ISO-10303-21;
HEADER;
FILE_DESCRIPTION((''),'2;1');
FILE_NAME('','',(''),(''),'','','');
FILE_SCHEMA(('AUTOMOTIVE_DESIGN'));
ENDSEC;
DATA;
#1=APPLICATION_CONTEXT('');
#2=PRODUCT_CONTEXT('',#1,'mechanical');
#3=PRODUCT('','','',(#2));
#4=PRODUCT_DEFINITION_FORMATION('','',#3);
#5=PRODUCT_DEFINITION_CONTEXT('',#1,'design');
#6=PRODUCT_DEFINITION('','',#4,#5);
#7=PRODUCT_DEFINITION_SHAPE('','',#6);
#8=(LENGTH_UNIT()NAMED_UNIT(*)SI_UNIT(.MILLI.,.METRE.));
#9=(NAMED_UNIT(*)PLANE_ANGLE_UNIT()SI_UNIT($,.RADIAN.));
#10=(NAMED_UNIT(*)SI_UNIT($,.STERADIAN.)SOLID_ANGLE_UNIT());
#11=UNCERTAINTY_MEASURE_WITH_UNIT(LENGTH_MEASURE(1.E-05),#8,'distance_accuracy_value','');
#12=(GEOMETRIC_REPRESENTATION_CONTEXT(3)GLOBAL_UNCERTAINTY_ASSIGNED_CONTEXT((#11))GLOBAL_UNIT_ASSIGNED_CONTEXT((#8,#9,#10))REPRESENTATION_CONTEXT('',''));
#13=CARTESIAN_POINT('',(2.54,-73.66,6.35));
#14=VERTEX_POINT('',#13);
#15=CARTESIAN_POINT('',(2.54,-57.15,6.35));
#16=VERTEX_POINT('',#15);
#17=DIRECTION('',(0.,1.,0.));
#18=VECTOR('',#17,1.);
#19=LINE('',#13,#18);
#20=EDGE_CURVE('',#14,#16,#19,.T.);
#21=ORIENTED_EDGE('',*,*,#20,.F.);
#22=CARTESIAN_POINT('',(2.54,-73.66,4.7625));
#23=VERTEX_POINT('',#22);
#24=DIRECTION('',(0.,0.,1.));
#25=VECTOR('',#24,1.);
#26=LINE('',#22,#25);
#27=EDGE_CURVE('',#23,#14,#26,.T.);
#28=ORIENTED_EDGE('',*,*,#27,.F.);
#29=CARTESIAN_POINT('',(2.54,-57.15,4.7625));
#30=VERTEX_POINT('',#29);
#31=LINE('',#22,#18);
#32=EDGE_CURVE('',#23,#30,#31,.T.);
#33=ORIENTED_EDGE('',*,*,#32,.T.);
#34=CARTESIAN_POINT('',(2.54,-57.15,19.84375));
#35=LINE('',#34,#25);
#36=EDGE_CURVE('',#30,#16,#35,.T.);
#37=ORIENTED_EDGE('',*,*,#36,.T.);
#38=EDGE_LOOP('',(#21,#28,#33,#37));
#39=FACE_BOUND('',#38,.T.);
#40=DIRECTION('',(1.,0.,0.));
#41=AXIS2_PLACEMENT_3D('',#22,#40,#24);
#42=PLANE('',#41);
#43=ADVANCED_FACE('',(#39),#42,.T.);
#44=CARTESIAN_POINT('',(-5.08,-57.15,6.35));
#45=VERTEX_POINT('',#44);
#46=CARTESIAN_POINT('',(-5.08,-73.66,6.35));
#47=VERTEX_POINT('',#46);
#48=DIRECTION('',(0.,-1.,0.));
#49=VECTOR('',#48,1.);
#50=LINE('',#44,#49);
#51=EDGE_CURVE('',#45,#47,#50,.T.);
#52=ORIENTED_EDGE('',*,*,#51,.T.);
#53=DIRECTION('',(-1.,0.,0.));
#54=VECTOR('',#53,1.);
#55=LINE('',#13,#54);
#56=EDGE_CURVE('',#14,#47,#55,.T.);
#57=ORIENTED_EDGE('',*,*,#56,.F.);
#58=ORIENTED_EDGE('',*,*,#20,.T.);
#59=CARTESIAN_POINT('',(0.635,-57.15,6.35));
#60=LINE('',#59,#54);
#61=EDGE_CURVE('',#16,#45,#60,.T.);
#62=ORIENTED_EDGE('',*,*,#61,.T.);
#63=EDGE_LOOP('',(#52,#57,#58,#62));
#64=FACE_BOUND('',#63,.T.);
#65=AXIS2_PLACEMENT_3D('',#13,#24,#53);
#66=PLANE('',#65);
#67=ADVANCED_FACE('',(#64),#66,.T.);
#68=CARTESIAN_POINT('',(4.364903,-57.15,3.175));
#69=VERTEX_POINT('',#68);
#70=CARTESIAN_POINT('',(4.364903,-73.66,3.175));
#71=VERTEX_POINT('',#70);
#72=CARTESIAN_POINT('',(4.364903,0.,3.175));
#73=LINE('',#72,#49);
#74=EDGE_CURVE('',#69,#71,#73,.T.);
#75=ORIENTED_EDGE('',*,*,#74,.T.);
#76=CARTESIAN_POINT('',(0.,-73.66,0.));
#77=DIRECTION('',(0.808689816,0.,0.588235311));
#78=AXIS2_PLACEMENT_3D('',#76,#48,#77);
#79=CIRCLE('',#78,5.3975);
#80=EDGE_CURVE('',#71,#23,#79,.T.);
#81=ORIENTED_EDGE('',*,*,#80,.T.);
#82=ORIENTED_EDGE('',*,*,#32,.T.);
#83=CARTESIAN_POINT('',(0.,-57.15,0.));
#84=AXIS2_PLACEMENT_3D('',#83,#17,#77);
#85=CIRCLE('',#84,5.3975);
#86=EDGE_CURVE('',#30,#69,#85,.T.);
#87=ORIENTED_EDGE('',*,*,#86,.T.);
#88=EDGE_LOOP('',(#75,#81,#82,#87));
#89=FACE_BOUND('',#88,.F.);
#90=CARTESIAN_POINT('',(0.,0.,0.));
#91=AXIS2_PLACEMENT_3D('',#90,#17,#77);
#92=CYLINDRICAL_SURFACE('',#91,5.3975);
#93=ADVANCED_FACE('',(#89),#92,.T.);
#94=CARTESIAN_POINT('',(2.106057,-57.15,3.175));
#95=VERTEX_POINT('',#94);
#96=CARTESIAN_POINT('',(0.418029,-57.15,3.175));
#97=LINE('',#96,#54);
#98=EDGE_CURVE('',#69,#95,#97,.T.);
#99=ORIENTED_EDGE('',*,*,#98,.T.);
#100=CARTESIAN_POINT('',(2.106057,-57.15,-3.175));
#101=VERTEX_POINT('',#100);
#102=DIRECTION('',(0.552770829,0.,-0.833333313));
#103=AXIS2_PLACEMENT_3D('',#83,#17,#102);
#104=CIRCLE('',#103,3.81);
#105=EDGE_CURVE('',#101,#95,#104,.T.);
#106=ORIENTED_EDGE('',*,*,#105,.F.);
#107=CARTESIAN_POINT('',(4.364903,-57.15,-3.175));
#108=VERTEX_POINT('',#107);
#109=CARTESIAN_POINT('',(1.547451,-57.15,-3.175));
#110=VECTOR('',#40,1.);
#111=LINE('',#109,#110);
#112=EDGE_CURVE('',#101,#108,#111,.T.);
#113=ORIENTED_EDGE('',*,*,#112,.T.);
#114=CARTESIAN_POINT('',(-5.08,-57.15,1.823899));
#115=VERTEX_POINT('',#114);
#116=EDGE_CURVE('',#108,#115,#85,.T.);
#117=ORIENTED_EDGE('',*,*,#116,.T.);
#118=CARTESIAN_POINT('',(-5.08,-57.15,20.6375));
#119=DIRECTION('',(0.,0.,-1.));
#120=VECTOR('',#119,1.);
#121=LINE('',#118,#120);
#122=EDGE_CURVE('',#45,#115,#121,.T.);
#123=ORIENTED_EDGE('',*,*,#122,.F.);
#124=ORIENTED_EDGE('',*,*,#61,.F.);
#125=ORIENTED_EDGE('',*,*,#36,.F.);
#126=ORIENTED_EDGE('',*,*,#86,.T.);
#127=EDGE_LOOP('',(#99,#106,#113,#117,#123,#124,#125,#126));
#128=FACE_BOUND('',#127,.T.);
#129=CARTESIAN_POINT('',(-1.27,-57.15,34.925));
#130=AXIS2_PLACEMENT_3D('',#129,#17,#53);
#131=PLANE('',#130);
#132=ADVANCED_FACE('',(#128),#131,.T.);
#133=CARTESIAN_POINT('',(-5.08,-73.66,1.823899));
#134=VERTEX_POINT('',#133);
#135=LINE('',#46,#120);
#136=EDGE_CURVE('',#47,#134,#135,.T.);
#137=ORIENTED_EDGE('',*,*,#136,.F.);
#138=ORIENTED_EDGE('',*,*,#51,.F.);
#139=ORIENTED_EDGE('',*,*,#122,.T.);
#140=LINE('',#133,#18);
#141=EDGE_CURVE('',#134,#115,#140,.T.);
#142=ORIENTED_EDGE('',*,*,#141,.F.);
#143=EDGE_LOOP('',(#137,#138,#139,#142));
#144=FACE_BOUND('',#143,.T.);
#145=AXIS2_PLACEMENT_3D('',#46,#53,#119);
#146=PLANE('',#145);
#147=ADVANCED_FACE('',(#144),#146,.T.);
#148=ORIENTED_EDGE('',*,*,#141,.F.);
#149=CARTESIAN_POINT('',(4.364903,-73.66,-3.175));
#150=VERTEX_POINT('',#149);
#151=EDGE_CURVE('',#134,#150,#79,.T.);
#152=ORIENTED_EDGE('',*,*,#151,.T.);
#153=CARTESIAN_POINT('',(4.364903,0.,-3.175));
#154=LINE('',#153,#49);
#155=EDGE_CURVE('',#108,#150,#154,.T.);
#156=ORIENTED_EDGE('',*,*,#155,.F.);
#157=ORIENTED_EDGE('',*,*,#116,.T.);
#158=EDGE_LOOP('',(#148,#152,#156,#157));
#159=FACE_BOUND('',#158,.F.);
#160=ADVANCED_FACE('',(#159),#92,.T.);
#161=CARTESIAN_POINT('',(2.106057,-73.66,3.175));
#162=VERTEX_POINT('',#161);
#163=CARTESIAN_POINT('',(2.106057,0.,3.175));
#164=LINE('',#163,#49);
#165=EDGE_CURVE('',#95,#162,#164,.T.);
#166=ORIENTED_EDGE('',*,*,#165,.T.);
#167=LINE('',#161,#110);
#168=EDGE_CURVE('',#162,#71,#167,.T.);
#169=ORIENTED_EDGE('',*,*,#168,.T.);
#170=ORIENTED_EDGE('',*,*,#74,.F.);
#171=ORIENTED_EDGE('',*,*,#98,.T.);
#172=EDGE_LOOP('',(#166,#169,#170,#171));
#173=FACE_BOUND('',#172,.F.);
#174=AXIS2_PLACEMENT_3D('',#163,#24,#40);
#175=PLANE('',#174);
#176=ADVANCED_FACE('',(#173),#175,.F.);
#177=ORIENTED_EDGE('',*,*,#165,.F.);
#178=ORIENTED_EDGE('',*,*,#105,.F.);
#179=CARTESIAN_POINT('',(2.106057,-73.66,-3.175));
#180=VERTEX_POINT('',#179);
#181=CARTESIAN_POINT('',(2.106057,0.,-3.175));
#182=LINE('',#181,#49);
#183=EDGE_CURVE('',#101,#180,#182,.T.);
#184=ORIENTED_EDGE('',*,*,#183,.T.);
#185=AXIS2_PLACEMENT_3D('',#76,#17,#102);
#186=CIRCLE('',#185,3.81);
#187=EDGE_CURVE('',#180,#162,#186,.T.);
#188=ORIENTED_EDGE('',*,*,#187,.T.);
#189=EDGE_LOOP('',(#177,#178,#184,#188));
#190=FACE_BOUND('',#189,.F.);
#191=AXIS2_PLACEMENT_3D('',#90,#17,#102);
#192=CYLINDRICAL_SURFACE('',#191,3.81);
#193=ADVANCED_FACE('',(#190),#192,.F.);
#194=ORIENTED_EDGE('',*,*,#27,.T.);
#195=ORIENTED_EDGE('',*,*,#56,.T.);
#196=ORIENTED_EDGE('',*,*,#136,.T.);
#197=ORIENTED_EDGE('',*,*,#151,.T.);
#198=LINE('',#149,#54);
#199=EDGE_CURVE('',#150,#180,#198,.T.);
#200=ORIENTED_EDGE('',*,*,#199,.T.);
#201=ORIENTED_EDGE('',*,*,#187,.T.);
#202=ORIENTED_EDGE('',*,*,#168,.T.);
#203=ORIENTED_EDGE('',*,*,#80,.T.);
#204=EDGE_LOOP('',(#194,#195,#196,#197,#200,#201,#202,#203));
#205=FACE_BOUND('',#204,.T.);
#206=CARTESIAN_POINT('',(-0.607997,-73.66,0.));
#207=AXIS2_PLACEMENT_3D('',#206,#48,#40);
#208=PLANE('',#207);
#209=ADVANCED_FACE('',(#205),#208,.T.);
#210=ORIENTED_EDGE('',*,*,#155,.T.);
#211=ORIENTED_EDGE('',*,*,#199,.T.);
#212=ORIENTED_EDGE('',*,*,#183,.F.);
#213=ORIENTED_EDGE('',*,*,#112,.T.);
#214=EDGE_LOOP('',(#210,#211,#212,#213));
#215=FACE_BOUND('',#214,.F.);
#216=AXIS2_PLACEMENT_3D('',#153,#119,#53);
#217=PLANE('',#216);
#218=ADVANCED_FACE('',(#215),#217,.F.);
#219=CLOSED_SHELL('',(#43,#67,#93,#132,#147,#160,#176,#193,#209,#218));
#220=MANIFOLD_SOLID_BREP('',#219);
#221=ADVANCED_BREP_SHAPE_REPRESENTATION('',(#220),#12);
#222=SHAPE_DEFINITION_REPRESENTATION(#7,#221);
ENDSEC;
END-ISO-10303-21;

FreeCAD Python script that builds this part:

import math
import FreeCAD as App
import Part
import Sketcher
from FreeCAD import Vector
Q = App.Units.Quantity

doc = App.newDocument("Part")
params = doc.addObject("Spreadsheet::Sheet", "Params")
for row, (alias, value) in enumerate([
    ("sketch1_radius", "0.15 in"),
    ("pad1_length", "2.9 in"),
    ("sketch2_width", "0.3 in"),
    ("sketch2_height", "0.0625 in"),
    ("pad2_length", "2.9 in"),
    ("sketch3_width", "1 in"),
    ("sketch3_height", "0.25 in"),
    ("pad3_length", "2.75 in"),
    ("sketch4_width", "0.5 in"),
    ("sketch4_height", "2.5 in"),
    ("sketch5_width", "1 in"),
    ("sketch5_height", "3.25 in"),
    ("pocket2_length", "2.25 in"),
    ("sketch6_width", "1 in"),
    ("sketch6_height", "0.25 in"),
], start=1):
    params.set(f"A{row}", alias)
    params.set(f"B{row}", "=" + value)
    params.setAlias(f"B{row}", alias)

body = doc.addObject("PartDesign::Body", "Body")

sketch1 = body.newObject("Sketcher::SketchObject", "Sketch")
sketch1.AttachmentSupport = (doc.getObject("XZ_Plane"), [""])
sketch1.MapMode = "FlatFace"
sketch1.addGeometry([
    Part.ArcOfCircle(Part.Circle(Vector(0, 0, 0), Vector(0, 0, 1), 3.81), math.radians(56.442688), math.radians(303.557312)),
    Part.LineSegment(Vector(2.106057, 3.175, 0), Vector(4.364903, 3.175, 0)),
    Part.ArcOfCircle(Part.Circle(Vector(0, 0, 0), Vector(0, 0, 1), 5.3975), math.radians(36.03188), math.radians(323.96812)),
    Part.LineSegment(Vector(4.364903, -3.175, 0), Vector(2.106057, -3.175, 0)),
], False)
sketch1.addConstraint([
    Sketcher.Constraint("Coincident", 0, 1, 1, 1),
    Sketcher.Constraint("Coincident", 1, 2, 2, 1),
    Sketcher.Constraint("Coincident", 2, 2, 3, 1),
    Sketcher.Constraint("Coincident", 3, 2, 0, 2),
    Sketcher.Constraint("Horizontal", 1),
    Sketcher.Constraint("Horizontal", 3),
    Sketcher.Constraint("Coincident", 0, 3, -1, 1),
    Sketcher.Constraint("Coincident", 2, 3, -1, 1),
    Sketcher.Constraint("Vertical", 1, 2, 2, 2),
    Sketcher.Constraint("Radius", 0, Q("0.15 in")),
    Sketcher.Constraint("Radius", 2, Q("0.2125 in")),
    Sketcher.Constraint("DistanceY", 2, 2, 1, 2, Q("0.25 in")),
])
sketch1.setExpression("Constraints[9]", "Params.sketch1_radius")
pad1 = body.newObject("PartDesign::Pad", "Pad")
pad1.Profile = sketch1
pad1.setExpression("Length", "Params.pad1_length")

sketch2 = body.newObject("Sketcher::SketchObject", "Sketch001")
sketch2.AttachmentSupport = (doc.getObject("XZ_Plane"), [""])
sketch2.MapMode = "FlatFace"
sketch2.AttachmentOffset = App.Placement(Vector(0, 0, 2.9 * 25.4), App.Rotation())
sketch2.addGeometry([
    Part.LineSegment(Vector(-5.08, 6.35, 0), Vector(-5.08, 1.823899, 0)),
    Part.ArcOfCircle(Part.Circle(Vector(0, 0.000001, 0), Vector(0, 0, 1), 5.397499), math.radians(61.927505), math.radians(160.250081)),
    Part.LineSegment(Vector(2.54, 4.7625, 0), Vector(2.54, 6.35, 0)),
    Part.LineSegment(Vector(2.54, 6.35, 0), Vector(-5.08, 6.35, 0)),
], False)
sketch2.addConstraint([
    Sketcher.Constraint("Coincident", 0, 2, 1, 2),
    Sketcher.Constraint("Coincident", 1, 1, 2, 1),
    Sketcher.Constraint("Coincident", 2, 2, 3, 1),
    Sketcher.Constraint("Coincident", 3, 2, 0, 1),
    Sketcher.Constraint("Vertical", 0),
    Sketcher.Constraint("Vertical", 2),
    Sketcher.Constraint("Horizontal", 3),
    Sketcher.Constraint("Coincident", 1, 3, -1, 1),
    Sketcher.Constraint("DistanceX", 3, 2, 3, 1, Q("0.3 in")),
    Sketcher.Constraint("DistanceX", 0, 2, -1, 1, Q("0.2 in")),
    Sketcher.Constraint("Radius", 1, Q("0.2125 in")),
    Sketcher.Constraint("DistanceY", 2, 1, 2, 2, Q("0.0625 in")),
])
sketch2.setExpression("Constraints[8]", "Params.sketch2_width")
sketch2.setExpression("Constraints[11]", "Params.sketch2_height")
pad2 = body.newObject("PartDesign::Pad", "Pad001")
pad2.Profile = sketch2
pad2.setExpression("Length", "Params.pad2_length")
pad2.Reversed = True

sketch3 = body.newObject("Sketcher::SketchObject", "Sketch002")
sketch3.AttachmentSupport = (doc.getObject("XY_Plane"), [""])
sketch3.MapMode = "FlatFace"
sketch3.AttachmentOffset = App.Placement(Vector(0, 0, 0.25 * 25.4), App.Rotation())
sketch3.addGeometry([
    Part.LineSegment(Vector(-13.97, -62.230001, 0), Vector(-13.97, -68.579999, 0)),
    Part.LineSegment(Vector(-13.97, -68.579999, 0), Vector(11.43, -68.579999, 0)),
    Part.LineSegment(Vector(11.43, -68.579999, 0), Vector(11.43, -62.230001, 0)),
    Part.LineSegment(Vector(11.43, -62.230001, 0), Vector(-13.97, -62.230001, 0)),
    Part.LineSegment(Vector(-13.97, -5.08, 0), Vector(-13.97, -11.43, 0)),
    Part.LineSegment(Vector(-13.97, -11.43, 0), Vector(11.43, -11.43, 0)),
    Part.LineSegment(Vector(11.43, -11.43, 0), Vector(11.43, -5.08, 0)),
    Part.LineSegment(Vector(11.43, -5.08, 0), Vector(-13.97, -5.08, 0)),
], False)
sketch3.addConstraint([
    Sketcher.Constraint("Coincident", 0, 2, 1, 1),
    Sketcher.Constraint("Coincident", 1, 2, 2, 1),
    Sketcher.Constraint("Coincident", 2, 2, 3, 1),
    Sketcher.Constraint("Coincident", 3, 2, 0, 1),
    Sketcher.Constraint("Coincident", 4, 2, 5, 1),
    Sketcher.Constraint("Coincident", 5, 2, 6, 1),
    Sketcher.Constraint("Coincident", 6, 2, 7, 1),
    Sketcher.Constraint("Coincident", 7, 2, 4, 1),
    Sketcher.Constraint("Vertical", 0),
    Sketcher.Constraint("Horizontal", 1),
    Sketcher.Constraint("Vertical", 2),
    Sketcher.Constraint("Horizontal", 3),
    Sketcher.Constraint("Vertical", 4),
    Sketcher.Constraint("Horizontal", 5),
    Sketcher.Constraint("Vertical", 6),
    Sketcher.Constraint("Horizontal", 7),
    Sketcher.Constraint("Vertical", 3, 2, 4, 2),
    Sketcher.Constraint("Vertical", 2, 2, 5, 2),
    Sketcher.Constraint("Equal", 2, 4),
    Sketcher.Constraint("DistanceX", 1, 1, 1, 2, Q("1 in")),
    Sketcher.Constraint("DistanceY", 3, 2, 4, 2, Q("2 in")),
    Sketcher.Constraint("DistanceY", 0, 2, 0, 1, Q("0.25 in")),
    Sketcher.Constraint("DistanceY", 0, 2, -1, 1, Q("2.7 in")),
    Sketcher.Constraint("DistanceX", 0, 2, -1, 1, Q("0.55 in")),
])
sketch3.setExpression("Constraints[19]", "Params.sketch3_width")
sketch3.setExpression("Constraints[21]", "Params.sketch3_height")
pad3 = body.newObject("PartDesign::Pad", "Pad002")
pad3.Profile = sketch3
pad3.setExpression("Length", "Params.pad3_length")

sketch4 = body.newObject("Sketcher::SketchObject", "Sketch003")
sketch4.AttachmentSupport = (doc.getObject("XZ_Plane"), [""])
sketch4.MapMode = "FlatFace"
sketch4.AttachmentOffset = App.Placement(Vector(0, 0, 2.7 * 25.4), App.Rotation())
sketch4.addGeometry([
    Part.LineSegment(Vector(-7.62, 76.2, 0), Vector(-7.62, 12.7, 0)),
    Part.LineSegment(Vector(-7.62, 12.7, 0), Vector(5.08, 12.7, 0)),
    Part.LineSegment(Vector(5.08, 12.7, 0), Vector(5.08, 76.2, 0)),
    Part.LineSegment(Vector(5.08, 76.2, 0), Vector(-7.62, 76.2, 0)),
], False)
sketch4.addConstraint([
    Sketcher.Constraint("Coincident", 0, 2, 1, 1),
    Sketcher.Constraint("Coincident", 1, 2, 2, 1),
    Sketcher.Constraint("Coincident", 2, 2, 3, 1),
    Sketcher.Constraint("Coincident", 3, 2, 0, 1),
    Sketcher.Constraint("Vertical", 0),
    Sketcher.Constraint("Horizontal", 1),
    Sketcher.Constraint("Vertical", 2),
    Sketcher.Constraint("Horizontal", 3),
    Sketcher.Constraint("DistanceX", 1, 1, 1, 2, Q("0.5 in")),
    Sketcher.Constraint("DistanceY", 0, 2, 0, 1, Q("2.5 in")),
    Sketcher.Constraint("DistanceY", -1, 1, 2, 2, Q("3 in")),
    Sketcher.Constraint("DistanceX", 0, 2, -1, 1, Q("0.3 in")),
])
sketch4.setExpression("Constraints[8]", "Params.sketch4_width")
sketch4.setExpression("Constraints[9]", "Params.sketch4_height")
pocket1 = body.newObject("PartDesign::Pocket", "Pocket")
pocket1.Profile = sketch4
pocket1.Type = "ThroughAll"

sketch5 = body.newObject("Sketcher::SketchObject", "Sketch004")
sketch5.AttachmentSupport = (doc.getObject("XZ_Plane"), [""])
sketch5.MapMode = "FlatFace"
sketch5.addGeometry([
    Part.LineSegment(Vector(11.43, 76.2, 0), Vector(11.43, -6.35, 0)),
    Part.LineSegment(Vector(11.43, -6.35, 0), Vector(-13.97, -6.35, 0)),
    Part.LineSegment(Vector(-13.97, -6.35, 0), Vector(-13.97, 76.2, 0)),
    Part.LineSegment(Vector(-13.97, 76.2, 0), Vector(11.43, 76.2, 0)),
], False)
sketch5.addConstraint([
    Sketcher.Constraint("Coincident", 0, 2, 1, 1),
    Sketcher.Constraint("Coincident", 1, 2, 2, 1),
    Sketcher.Constraint("Coincident", 2, 2, 3, 1),
    Sketcher.Constraint("Coincident", 3, 2, 0, 1),
    Sketcher.Constraint("Vertical", 0),
    Sketcher.Constraint("Horizontal", 1),
    Sketcher.Constraint("Vertical", 2),
    Sketcher.Constraint("Horizontal", 3),
    Sketcher.Constraint("DistanceX", 1, 2, 1, 1, Q("1 in")),
    Sketcher.Constraint("DistanceY", -1, 1, 2, 2, Q("3 in")),
    Sketcher.Constraint("DistanceY", 0, 2, 0, 1, Q("3.25 in")),
    Sketcher.Constraint("DistanceX", -1, 1, 0, 2, Q("0.45 in")),
])
sketch5.setExpression("Constraints[8]", "Params.sketch5_width")
sketch5.setExpression("Constraints[10]", "Params.sketch5_height")
pocket2 = body.newObject("PartDesign::Pocket", "Pocket001")
pocket2.Profile = sketch5
pocket2.setExpression("Length", "Params.pocket2_length")
pocket2.Reversed = True

sketch6 = body.newObject("Sketcher::SketchObject", "Sketch005")
sketch6.AttachmentSupport = (doc.getObject("XY_Plane"), [""])
sketch6.MapMode = "FlatFace"
sketch6.AttachmentOffset = App.Placement(Vector(0, 0, 0.25 * 25.4), App.Rotation())
sketch6.addGeometry([
    Part.LineSegment(Vector(-13.97, -68.579999, 0), Vector(-13.97, -62.230001, 0)),
    Part.LineSegment(Vector(-13.97, -62.230001, 0), Vector(11.43, -62.230001, 0)),
    Part.LineSegment(Vector(11.43, -62.230001, 0), Vector(11.43, -68.579999, 0)),
    Part.LineSegment(Vector(11.43, -68.579999, 0), Vector(-13.97, -68.579999, 0)),
], False)
sketch6.addConstraint([
    Sketcher.Constraint("Coincident", 0, 2, 1, 1),
    Sketcher.Constraint("Coincident", 1, 2, 2, 1),
    Sketcher.Constraint("Coincident", 2, 2, 3, 1),
    Sketcher.Constraint("Coincident", 3, 2, 0, 1),
    Sketcher.Constraint("Vertical", 0),
    Sketcher.Constraint("Horizontal", 1),
    Sketcher.Constraint("Vertical", 2),
    Sketcher.Constraint("Horizontal", 3),
    Sketcher.Constraint("DistanceX", 1, 1, 1, 2, Q("1 in")),
    Sketcher.Constraint("DistanceY", 0, 1, 0, 2, Q("0.25 in")),
    Sketcher.Constraint("DistanceY", 2, 2, -1, 1, Q("2.7 in")),
    Sketcher.Constraint("DistanceX", 0, 2, -1, 1, Q("0.55 in")),
])
sketch6.setExpression("Constraints[8]", "Params.sketch6_width")
sketch6.setExpression("Constraints[9]", "Params.sketch6_height")
pocket3 = body.newObject("PartDesign::Pocket", "Pocket002")
pocket3.Profile = sketch6
pocket3.Type = "ThroughAll"
pocket3.Reversed = True

doc.recompute()
